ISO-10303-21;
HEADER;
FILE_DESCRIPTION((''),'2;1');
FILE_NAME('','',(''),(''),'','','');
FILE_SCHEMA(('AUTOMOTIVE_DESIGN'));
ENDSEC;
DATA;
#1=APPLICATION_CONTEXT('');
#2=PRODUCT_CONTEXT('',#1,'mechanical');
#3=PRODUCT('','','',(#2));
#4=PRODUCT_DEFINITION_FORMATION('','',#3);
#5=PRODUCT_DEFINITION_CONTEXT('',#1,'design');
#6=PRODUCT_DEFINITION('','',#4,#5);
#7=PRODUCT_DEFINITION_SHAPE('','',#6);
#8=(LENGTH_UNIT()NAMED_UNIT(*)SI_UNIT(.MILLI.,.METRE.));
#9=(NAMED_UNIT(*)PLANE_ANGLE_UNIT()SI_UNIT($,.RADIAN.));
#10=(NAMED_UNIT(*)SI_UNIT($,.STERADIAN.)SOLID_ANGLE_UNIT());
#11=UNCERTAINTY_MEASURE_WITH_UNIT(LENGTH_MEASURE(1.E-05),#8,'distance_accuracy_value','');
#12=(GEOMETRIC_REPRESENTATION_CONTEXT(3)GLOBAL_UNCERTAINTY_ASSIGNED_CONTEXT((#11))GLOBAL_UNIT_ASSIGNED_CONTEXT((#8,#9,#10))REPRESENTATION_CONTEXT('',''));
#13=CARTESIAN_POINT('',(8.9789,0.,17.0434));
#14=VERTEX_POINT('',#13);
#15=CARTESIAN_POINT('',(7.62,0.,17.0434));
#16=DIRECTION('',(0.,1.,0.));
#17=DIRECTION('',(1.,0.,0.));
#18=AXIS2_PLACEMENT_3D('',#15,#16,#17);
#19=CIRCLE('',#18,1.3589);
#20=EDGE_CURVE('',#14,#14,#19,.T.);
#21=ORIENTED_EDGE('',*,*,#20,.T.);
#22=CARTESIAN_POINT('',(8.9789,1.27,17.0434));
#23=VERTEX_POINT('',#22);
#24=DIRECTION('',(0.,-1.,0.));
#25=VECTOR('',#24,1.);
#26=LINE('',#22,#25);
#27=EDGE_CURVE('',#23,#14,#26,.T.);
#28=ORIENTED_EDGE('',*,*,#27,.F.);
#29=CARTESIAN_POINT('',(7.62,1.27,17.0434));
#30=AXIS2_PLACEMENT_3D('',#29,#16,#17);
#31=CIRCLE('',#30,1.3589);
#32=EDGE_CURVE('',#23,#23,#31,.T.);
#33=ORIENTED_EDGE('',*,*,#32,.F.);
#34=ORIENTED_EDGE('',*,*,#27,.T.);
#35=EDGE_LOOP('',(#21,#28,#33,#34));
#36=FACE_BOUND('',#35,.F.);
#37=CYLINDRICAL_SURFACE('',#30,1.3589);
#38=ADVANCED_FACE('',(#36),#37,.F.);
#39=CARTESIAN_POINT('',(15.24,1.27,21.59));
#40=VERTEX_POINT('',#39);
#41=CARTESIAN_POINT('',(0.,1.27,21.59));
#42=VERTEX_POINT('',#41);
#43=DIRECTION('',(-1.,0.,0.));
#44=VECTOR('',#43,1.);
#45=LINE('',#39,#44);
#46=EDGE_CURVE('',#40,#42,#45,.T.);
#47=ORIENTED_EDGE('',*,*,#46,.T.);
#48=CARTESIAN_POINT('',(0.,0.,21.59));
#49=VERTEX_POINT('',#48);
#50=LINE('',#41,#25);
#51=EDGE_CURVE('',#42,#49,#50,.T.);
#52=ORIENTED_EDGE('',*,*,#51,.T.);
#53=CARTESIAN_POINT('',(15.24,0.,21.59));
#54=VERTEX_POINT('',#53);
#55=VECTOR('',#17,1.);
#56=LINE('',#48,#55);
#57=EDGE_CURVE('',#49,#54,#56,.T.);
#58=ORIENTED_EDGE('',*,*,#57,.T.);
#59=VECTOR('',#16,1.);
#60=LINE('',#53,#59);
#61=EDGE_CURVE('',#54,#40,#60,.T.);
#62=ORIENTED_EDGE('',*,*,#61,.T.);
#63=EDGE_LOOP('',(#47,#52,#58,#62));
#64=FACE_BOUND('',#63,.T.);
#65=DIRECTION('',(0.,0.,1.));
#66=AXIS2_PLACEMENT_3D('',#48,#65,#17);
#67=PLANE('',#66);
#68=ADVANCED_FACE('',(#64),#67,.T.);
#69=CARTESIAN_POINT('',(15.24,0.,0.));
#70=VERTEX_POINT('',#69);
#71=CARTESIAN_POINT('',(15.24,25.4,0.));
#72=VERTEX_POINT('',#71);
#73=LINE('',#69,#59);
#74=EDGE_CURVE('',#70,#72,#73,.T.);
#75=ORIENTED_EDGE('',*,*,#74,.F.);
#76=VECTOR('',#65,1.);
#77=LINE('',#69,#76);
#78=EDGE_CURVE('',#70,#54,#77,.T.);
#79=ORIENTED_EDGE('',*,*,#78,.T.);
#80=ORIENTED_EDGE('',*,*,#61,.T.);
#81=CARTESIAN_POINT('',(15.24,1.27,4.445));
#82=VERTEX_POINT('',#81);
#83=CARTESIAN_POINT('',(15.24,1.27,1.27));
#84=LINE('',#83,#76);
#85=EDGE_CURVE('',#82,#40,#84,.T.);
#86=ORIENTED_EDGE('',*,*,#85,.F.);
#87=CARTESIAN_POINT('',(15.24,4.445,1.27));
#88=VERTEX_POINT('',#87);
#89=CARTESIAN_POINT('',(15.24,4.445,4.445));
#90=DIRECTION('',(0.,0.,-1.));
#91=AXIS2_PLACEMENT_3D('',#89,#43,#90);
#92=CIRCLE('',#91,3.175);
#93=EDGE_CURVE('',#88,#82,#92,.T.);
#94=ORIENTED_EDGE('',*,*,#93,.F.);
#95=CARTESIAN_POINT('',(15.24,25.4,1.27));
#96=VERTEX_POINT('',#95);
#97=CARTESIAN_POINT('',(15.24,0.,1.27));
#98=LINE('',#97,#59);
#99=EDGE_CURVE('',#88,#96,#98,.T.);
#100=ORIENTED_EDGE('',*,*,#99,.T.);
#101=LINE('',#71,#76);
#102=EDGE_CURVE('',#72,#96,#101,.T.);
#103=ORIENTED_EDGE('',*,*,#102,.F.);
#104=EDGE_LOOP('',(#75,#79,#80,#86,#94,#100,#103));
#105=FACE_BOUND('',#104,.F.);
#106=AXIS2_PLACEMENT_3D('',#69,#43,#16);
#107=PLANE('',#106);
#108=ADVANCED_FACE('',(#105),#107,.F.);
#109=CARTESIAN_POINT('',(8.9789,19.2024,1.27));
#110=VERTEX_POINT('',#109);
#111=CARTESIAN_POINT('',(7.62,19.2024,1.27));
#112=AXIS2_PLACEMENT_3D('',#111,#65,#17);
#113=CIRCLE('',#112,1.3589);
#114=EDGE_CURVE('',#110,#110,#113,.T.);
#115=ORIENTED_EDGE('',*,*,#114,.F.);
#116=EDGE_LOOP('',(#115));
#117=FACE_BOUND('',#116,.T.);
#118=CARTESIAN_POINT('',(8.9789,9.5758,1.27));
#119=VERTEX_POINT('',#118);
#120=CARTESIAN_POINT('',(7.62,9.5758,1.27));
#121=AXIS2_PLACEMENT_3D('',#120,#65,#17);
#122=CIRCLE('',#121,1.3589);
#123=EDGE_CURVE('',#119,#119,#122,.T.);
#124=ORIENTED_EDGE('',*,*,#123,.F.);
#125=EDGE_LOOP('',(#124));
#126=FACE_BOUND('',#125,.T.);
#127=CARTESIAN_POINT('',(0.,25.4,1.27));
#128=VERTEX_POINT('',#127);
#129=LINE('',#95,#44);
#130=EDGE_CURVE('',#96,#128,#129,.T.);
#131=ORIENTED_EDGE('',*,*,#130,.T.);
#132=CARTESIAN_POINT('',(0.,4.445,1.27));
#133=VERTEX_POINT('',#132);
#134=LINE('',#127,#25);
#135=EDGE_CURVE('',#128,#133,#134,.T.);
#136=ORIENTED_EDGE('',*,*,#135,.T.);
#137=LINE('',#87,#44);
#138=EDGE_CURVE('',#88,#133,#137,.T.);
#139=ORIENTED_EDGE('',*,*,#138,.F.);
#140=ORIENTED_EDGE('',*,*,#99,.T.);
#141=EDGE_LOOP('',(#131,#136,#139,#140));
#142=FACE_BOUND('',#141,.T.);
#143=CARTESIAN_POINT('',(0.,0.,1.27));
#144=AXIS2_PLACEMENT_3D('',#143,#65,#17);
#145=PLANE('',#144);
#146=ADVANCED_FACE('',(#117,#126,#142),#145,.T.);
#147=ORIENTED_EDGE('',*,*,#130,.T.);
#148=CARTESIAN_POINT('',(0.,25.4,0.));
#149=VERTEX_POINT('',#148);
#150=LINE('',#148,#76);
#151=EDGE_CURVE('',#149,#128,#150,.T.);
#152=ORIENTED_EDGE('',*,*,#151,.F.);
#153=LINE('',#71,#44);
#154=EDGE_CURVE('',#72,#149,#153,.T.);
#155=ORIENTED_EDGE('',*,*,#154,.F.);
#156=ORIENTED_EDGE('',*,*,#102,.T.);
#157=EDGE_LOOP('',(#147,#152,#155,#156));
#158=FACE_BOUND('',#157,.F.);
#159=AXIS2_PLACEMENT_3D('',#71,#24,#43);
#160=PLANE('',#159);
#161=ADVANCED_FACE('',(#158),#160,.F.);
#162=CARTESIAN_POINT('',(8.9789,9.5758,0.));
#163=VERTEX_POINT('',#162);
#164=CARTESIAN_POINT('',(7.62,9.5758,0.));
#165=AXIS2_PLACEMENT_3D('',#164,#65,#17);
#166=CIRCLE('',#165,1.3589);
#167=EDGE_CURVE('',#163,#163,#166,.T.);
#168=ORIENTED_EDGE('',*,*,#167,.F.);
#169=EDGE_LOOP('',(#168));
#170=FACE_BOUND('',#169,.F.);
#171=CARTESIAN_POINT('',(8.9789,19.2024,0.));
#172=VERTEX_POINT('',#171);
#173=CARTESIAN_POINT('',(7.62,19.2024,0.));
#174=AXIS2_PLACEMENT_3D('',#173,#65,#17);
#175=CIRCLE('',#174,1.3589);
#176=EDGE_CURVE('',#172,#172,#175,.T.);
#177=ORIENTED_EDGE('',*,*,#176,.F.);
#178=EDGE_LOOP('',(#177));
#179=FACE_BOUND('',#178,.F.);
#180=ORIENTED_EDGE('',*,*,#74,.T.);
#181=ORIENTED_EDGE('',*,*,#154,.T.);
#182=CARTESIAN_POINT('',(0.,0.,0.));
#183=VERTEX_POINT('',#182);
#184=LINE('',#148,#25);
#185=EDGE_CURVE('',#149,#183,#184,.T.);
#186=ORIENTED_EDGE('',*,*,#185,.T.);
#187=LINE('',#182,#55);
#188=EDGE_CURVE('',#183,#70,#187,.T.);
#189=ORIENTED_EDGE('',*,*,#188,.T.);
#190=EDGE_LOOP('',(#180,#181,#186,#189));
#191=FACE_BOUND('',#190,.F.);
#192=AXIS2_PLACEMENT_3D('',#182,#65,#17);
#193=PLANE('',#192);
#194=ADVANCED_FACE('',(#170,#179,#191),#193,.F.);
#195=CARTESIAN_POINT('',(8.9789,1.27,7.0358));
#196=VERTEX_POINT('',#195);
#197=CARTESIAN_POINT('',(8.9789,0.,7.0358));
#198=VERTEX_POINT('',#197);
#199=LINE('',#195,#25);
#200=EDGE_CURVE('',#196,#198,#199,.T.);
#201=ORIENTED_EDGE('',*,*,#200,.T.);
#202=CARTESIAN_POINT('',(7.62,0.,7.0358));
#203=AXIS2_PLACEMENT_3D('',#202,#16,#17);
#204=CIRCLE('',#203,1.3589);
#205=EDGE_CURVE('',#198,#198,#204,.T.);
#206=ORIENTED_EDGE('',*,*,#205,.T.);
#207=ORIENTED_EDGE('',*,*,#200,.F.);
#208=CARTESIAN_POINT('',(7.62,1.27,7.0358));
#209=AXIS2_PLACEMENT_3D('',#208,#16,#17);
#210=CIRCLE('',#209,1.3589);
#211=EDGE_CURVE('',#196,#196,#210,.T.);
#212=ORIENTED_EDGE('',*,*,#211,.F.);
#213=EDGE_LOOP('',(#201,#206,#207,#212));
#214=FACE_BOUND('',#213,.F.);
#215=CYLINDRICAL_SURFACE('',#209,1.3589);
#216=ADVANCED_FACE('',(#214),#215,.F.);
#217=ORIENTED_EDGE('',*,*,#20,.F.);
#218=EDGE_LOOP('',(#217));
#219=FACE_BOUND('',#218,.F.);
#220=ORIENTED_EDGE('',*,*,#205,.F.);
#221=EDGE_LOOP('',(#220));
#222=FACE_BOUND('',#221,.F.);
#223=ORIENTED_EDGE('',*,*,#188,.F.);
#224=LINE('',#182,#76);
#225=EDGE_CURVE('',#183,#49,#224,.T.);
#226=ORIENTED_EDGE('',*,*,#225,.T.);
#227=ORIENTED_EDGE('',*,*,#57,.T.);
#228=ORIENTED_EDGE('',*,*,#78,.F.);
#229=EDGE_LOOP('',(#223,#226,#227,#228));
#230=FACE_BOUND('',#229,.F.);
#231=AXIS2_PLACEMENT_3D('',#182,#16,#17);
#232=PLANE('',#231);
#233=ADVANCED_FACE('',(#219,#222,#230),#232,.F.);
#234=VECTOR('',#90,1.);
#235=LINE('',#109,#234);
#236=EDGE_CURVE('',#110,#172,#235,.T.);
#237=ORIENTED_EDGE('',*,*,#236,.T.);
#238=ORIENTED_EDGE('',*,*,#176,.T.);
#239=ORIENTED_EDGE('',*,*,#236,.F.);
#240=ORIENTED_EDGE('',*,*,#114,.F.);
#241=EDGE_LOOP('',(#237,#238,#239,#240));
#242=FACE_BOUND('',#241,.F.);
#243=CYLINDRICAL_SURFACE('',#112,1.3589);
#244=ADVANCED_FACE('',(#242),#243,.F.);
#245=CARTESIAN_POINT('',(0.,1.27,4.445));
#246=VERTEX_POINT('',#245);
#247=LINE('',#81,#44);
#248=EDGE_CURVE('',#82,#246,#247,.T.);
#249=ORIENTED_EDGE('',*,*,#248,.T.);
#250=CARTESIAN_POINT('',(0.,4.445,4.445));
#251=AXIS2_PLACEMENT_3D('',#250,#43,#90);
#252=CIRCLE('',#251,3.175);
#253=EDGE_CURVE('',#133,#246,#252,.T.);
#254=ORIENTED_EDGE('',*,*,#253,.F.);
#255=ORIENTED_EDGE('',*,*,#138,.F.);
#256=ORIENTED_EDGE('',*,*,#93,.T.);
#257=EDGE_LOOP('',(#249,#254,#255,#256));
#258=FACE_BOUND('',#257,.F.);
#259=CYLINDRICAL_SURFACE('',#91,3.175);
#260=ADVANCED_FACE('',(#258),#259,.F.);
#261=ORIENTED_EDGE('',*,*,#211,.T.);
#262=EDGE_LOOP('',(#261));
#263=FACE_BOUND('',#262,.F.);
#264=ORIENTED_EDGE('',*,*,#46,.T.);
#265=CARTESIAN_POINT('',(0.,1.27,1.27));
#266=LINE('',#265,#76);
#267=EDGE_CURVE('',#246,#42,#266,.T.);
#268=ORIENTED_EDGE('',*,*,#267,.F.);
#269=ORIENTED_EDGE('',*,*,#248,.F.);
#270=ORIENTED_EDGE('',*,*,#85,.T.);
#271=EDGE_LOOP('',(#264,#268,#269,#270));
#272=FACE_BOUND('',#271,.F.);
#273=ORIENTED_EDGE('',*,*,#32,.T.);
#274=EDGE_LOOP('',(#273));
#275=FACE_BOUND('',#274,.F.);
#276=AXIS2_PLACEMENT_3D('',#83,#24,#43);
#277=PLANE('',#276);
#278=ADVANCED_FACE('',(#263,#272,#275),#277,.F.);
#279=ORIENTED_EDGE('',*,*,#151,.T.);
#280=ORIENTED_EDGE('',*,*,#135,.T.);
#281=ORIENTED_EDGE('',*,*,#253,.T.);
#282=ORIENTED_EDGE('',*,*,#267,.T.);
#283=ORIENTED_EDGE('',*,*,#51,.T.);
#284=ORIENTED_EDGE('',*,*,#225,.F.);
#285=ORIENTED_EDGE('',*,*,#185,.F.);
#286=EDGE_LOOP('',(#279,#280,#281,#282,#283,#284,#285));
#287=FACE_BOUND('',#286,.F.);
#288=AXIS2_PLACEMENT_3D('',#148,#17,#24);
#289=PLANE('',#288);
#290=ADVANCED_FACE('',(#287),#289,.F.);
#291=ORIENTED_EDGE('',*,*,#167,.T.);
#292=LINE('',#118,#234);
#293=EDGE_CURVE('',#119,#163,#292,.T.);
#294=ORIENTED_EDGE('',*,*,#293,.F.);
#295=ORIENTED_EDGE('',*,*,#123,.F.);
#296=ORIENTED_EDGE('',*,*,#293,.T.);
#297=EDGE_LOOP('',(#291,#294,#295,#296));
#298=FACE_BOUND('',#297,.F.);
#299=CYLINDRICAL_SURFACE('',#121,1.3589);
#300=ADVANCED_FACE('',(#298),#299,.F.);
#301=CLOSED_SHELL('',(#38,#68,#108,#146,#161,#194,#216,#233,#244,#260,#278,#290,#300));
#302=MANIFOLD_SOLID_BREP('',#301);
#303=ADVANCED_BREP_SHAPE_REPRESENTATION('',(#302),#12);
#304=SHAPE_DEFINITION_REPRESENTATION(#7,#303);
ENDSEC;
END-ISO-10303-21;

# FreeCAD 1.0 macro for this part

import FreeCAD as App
import Part
import Sketcher
from FreeCAD import Vector
Q = App.Units.Quantity


def edges_at(feature, points):
    """Names of the edges that pass closest to the given points."""
    edges = feature.Shape.Edges
    near = lambda p: min(range(len(edges)), key=lambda i: edges[i].distToShape(Part.Vertex(*p))[0])
    return sorted({f"Edge{near(p) + 1}" for p in points})

doc = App.newDocument("Part")
params = doc.addObject("Spreadsheet::Sheet", "Params")
for row, (alias, value) in enumerate([
    ("sketch1_height", "1 in"),
    ("sketch1_width", "0.6 in"),
    ("pad1_length", "0.05 in"),
    ("sketch2_height", "0.05 in"),
    ("sketch2_width", "0.6 in"),
    ("pad2_length", "0.8 in"),
    ("sketch3_diameter", "0.107 in"),
    ("pocket1_length", "1 in"),
    ("sketch4_diameter", "0.107 in"),
    ("pocket2_length", "1 in"),
    ("fillet_radius", "0.125 in"),
], start=1):
    params.set(f"A{row}", alias)
    params.set(f"B{row}", "=" + value)
    params.setAlias(f"B{row}", alias)

body = doc.addObject("PartDesign::Body", "Body")

# Sketch on XY plane
sketch1 = body.newObject("Sketcher::SketchObject", "Sketch")
sketch1.AttachmentSupport = (doc.getObject("XY_Plane"), [""])
sketch1.MapMode = "FlatFace"
sketch1.addGeometry(Part.LineSegment(Vector(0, 25.4, 0), Vector(0, 0, 0)), False)
sketch1.addGeometry(Part.LineSegment(Vector(0, 0, 0), Vector(15.24, 0, 0)), False)
sketch1.addGeometry(Part.LineSegment(Vector(15.24, 0, 0), Vector(15.24, 25.4, 0)), False)
sketch1.addGeometry(Part.LineSegment(Vector(15.24, 25.4, 0), Vector(0, 25.4, 0)), False)
sketch1.addConstraint(Sketcher.Constraint("Coincident", 0, 2, 1, 1))
sketch1.addConstraint(Sketcher.Constraint("Coincident", 1, 2, 2, 1))
sketch1.addConstraint(Sketcher.Constraint("Coincident", 2, 2, 3, 1))
sketch1.addConstraint(Sketcher.Constraint("Coincident", 3, 2, 0, 1))
sketch1.addConstraint(Sketcher.Constraint("Vertical", 0))
sketch1.addConstraint(Sketcher.Constraint("Horizontal", 1))
sketch1.addConstraint(Sketcher.Constraint("Vertical", 2))
sketch1.addConstraint(Sketcher.Constraint("Horizontal", 3))
sketch1.addConstraint(Sketcher.Constraint("Coincident", 0, 2, -1, 1))
sketch1.addConstraint(Sketcher.Constraint("DistanceY", 0, 2, 0, 1, Q("1 in")))
sketch1.addConstraint(Sketcher.Constraint("DistanceX", 1, 1, 1, 2, Q("0.6 in")))
sketch1.setExpression("Constraints[9]", "Params.sketch1_height")
sketch1.setExpression("Constraints[10]", "Params.sketch1_width")
pad1 = body.newObject("PartDesign::Pad", "Pad")
pad1.Profile = sketch1
pad1.setExpression("Length", "Params.pad1_length")

# Sketch on XY plane
sketch2 = body.newObject("Sketcher::SketchObject", "Sketch001")
sketch2.AttachmentSupport = (doc.getObject("XY_Plane"), [""])
sketch2.MapMode = "FlatFace"
sketch2.AttachmentOffset = App.Placement(Vector(0, 0, 0.05 * 25.4), App.Rotation())
sketch2.addGeometry(Part.LineSegment(Vector(0, 0, 0), Vector(15.24, 0, 0)), False)
sketch2.addGeometry(Part.LineSegment(Vector(15.24, 0, 0), Vector(15.24, 1.27, 0)), False)
sketch2.addGeometry(Part.LineSegment(Vector(15.24, 1.27, 0), Vector(0, 1.27, 0)), False)
sketch2.addGeometry(Part.LineSegment(Vector(0, 1.27, 0), Vector(0, 0, 0)), False)
sketch2.addConstraint(Sketcher.Constraint("Coincident", 0, 2, 1, 1))
sketch2.addConstraint(Sketcher.Constraint("Coincident", 1, 2, 2, 1))
sketch2.addConstraint(Sketcher.Constraint("Coincident", 2, 2, 3, 1))
sketch2.addConstraint(Sketcher.Constraint("Coincident", 3, 2, 0, 1))
sketch2.addConstraint(Sketcher.Constraint("Horizontal", 0))
sketch2.addConstraint(Sketcher.Constraint("Vertical", 1))
sketch2.addConstraint(Sketcher.Constraint("Horizontal", 2))
sketch2.addConstraint(Sketcher.Constraint("Vertical", 3))
sketch2.addConstraint(Sketcher.Constraint("Coincident", 3, 2, -1, 1))
sketch2.addConstraint(Sketcher.Constraint("DistanceY", 1, 1, 1, 2, Q("0.05 in")))
sketch2.addConstraint(Sketcher.Constraint("DistanceX", 0, 1, 0, 2, Q("0.6 in")))
sketch2.setExpression("Constraints[9]", "Params.sketch2_height")
sketch2.setExpression("Constraints[10]", "Params.sketch2_width")
pad2 = body.newObject("PartDesign::Pad", "Pad001")
pad2.Profile = sketch2
pad2.setExpression("Length", "Params.pad2_length")

# Sketch on XY plane
sketch3 = body.newObject("Sketcher::SketchObject", "Sketch002")
sketch3.AttachmentSupport = (doc.getObject("XY_Plane"), [""])
sketch3.MapMode = "FlatFace"
sketch3.AttachmentOffset = App.Placement(Vector(0, 0, 0.05 * 25.4), App.Rotation())
sketch3.addGeometry(Part.Circle(Vector(7.62, 19.2024, 0), Vector(0, 0, 1), 1.3589), False)
sketch3.addGeometry(Part.Circle(Vector(7.62, 9.5758, 0), Vector(0, 0, 1), 1.3589), False)
sketch3.addConstraint(Sketcher.Constraint("Equal", 0, 1))
sketch3.addConstraint(Sketcher.Constraint("Vertical", 0, 3, 1, 3))
sketch3.addConstraint(Sketcher.Constraint("Diameter", 0, Q("0.107 in")))
sketch3.addConstraint(Sketcher.Constraint("DistanceX", -1, 1, 0, 3, Q("0.3 in")))
sketch3.addConstraint(Sketcher.Constraint("DistanceY", -1, 1, 1, 3, Q("0.377 in")))
sketch3.addConstraint(Sketcher.Constraint("DistanceY", 1, 3, 0, 3, Q("0.379 in")))
sketch3.setExpression("Constraints[2]", "Params.sketch3_diameter")
pocket1 = body.newObject("PartDesign::Pocket", "Pocket")
pocket1.Profile = sketch3
pocket1.setExpression("Length", "Params.pocket1_length")

# Sketch on XZ plane
sketch4 = body.newObject("Sketcher::SketchObject", "Sketch003")
sketch4.AttachmentSupport = (doc.getObject("XZ_Plane"), [""])
sketch4.MapMode = "FlatFace"
sketch4.AttachmentOffset = App.Placement(Vector(0, 0, -0.05 * 25.4), App.Rotation())
sketch4.addGeometry(Part.Circle(Vector(7.62, 7.0358, 0), Vector(0, 0, 1), 1.3589), False)
sketch4.addGeometry(Part.Circle(Vector(7.62, 17.0434, 0), Vector(0, 0, 1), 1.3589), False)
sketch4.addConstraint(Sketcher.Constraint("Equal", 0, 1))
sketch4.addConstraint(Sketcher.Constraint("Vertical", 0, 3, 1, 3))
sketch4.addConstraint(Sketcher.Constraint("Diameter", 0, Q("0.107 in")))
sketch4.addConstraint(Sketcher.Constraint("DistanceX", -1, 1, 0, 3, Q("0.3 in")))
sketch4.addConstraint(Sketcher.Constraint("DistanceY", 0, 3, 1, 3, Q("0.394 in")))
sketch4.addConstraint(Sketcher.Constraint("DistanceY", -1, 1, 0, 3, Q("0.277 in")))
sketch4.setExpression("Constraints[2]", "Params.sketch4_diameter")
pocket2 = body.newObject("PartDesign::Pocket", "Pocket001")
pocket2.Profile = sketch4
pocket2.setExpression("Length", "Params.pocket2_length")
pocket2.Reversed = True
doc.recompute()

fillet = body.newObject("PartDesign::Fillet", "Fillet")
fillet.Base = (pocket2, edges_at(pocket2, [(7.62, 1.27, 1.27)]))
fillet.setExpression("Radius", "Params.fillet_radius")

doc.recompute()
